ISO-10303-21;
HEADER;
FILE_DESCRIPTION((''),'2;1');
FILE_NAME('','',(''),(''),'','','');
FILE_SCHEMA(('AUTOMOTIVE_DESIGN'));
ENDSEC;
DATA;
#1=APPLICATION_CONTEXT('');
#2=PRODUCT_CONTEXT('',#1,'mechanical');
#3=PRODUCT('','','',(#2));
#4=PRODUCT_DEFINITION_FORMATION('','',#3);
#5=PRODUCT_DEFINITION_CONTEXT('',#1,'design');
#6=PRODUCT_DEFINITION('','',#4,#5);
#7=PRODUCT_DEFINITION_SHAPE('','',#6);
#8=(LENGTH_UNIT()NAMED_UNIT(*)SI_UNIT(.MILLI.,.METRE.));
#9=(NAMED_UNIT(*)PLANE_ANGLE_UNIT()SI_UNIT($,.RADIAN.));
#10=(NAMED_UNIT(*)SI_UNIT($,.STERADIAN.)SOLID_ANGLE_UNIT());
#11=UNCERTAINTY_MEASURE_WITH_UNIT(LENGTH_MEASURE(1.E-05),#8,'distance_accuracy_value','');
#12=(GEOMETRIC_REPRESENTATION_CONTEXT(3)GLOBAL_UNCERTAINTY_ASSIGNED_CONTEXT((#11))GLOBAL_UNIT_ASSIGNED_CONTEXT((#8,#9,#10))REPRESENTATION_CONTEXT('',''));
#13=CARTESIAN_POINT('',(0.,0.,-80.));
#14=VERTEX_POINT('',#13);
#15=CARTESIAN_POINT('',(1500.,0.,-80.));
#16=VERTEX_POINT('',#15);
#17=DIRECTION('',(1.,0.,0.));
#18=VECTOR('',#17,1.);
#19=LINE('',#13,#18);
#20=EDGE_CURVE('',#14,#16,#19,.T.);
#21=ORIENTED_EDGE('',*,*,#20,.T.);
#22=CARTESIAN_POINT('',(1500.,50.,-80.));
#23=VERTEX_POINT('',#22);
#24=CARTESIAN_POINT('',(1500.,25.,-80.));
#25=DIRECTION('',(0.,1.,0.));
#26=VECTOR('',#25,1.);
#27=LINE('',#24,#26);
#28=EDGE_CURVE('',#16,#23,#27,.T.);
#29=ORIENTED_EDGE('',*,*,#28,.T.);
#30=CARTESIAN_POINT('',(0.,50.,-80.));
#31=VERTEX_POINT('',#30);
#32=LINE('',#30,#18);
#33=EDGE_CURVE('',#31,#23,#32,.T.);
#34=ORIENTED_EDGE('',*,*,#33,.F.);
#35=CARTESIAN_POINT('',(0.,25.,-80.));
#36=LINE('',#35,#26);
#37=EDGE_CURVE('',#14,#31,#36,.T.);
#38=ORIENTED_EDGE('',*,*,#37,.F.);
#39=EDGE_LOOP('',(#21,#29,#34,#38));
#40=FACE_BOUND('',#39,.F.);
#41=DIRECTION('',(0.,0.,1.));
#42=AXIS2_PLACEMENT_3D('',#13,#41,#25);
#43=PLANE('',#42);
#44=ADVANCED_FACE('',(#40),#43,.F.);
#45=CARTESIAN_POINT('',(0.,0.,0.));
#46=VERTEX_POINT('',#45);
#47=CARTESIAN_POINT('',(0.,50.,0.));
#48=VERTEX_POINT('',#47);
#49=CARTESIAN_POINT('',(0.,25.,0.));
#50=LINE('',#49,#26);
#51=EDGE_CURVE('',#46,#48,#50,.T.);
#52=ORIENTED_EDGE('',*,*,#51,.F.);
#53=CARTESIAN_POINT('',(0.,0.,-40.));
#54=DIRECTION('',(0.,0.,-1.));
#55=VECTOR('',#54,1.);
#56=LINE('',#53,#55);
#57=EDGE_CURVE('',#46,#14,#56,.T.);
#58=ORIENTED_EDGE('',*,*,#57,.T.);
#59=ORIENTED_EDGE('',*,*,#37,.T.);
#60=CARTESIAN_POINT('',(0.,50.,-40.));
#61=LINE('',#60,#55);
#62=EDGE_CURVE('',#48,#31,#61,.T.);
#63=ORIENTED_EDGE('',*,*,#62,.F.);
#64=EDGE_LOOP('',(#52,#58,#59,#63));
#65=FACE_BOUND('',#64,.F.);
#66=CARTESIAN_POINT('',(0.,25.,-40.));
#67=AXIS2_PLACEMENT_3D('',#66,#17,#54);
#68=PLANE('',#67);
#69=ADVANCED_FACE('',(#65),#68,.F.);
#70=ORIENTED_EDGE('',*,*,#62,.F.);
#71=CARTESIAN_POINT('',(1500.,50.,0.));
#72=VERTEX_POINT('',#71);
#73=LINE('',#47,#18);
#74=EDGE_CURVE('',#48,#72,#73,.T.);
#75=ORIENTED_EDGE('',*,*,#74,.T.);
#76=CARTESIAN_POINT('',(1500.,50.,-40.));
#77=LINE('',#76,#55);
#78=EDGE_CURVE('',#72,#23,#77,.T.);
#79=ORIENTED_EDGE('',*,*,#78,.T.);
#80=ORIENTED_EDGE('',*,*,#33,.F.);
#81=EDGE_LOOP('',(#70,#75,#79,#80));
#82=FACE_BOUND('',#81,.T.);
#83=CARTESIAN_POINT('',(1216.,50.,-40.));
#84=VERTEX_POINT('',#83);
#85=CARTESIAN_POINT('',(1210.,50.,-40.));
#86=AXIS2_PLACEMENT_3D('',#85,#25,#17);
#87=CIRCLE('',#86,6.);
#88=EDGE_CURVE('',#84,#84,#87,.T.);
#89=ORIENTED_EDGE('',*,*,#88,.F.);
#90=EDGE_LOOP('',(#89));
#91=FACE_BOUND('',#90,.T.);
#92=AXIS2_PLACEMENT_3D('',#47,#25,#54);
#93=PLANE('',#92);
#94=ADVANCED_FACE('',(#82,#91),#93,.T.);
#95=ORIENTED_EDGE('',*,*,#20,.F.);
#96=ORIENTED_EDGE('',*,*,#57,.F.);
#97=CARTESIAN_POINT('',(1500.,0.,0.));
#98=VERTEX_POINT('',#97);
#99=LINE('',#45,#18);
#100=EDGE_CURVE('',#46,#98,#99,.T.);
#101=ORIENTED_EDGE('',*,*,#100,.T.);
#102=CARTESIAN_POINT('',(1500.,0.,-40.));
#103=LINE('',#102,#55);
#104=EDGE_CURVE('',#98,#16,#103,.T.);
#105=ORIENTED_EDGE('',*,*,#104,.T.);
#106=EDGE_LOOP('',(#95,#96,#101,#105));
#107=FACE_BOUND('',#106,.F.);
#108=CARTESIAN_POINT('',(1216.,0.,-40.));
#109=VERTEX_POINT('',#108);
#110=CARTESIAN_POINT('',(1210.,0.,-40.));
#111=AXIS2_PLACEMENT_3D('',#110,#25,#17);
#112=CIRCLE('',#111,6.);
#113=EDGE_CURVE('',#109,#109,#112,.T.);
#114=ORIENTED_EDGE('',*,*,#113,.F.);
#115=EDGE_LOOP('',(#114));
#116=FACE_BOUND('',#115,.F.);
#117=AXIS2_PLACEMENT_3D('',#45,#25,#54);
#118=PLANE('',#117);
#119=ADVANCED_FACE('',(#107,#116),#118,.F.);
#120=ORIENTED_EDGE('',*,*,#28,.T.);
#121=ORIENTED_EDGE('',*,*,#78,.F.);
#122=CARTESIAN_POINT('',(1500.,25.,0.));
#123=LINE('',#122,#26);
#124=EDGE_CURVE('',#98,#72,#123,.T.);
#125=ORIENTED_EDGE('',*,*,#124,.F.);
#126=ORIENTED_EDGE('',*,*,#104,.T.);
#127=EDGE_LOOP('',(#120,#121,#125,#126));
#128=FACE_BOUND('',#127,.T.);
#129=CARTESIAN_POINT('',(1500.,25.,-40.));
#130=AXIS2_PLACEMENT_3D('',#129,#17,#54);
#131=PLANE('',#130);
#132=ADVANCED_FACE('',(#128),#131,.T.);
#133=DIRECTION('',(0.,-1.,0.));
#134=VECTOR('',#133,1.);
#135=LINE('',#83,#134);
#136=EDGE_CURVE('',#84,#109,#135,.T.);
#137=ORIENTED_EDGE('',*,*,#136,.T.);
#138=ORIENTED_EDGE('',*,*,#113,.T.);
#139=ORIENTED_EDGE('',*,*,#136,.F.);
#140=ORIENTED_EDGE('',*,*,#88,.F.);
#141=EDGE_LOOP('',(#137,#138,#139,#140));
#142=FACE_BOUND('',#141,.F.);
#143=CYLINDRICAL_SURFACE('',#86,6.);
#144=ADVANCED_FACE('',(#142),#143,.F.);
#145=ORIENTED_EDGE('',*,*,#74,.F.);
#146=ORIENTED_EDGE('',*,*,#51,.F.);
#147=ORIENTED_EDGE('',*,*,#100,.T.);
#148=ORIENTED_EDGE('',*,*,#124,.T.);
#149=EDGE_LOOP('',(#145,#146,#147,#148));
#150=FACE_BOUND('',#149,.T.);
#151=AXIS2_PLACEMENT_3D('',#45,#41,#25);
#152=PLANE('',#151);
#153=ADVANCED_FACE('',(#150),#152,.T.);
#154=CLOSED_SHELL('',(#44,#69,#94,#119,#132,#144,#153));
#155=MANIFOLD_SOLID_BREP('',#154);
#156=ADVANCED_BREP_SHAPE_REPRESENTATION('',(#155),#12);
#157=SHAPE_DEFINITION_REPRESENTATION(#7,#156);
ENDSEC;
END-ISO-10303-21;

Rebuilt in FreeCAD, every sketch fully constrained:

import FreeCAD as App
import Part
import Sketcher

doc = App.newDocument("Part")
body = doc.addObject("PartDesign::Body", "Body")

sketch1 = body.newObject("Sketcher::SketchObject", "Sketch")
sketch1.AttachmentSupport = (doc.getObject("YZ_Plane"), [""])
sketch1.MapMode = "FlatFace"
sketch1.addGeometry([
    Part.LineSegment(App.Vector(50, 0, 0), App.Vector(0, 0, 0)),
    Part.LineSegment(App.Vector(0, 0, 0), App.Vector(0, -80, 0)),
    Part.LineSegment(App.Vector(0, -80, 0), App.Vector(50, -80, 0)),
    Part.LineSegment(App.Vector(50, -80, 0), App.Vector(50, 0, 0)),
], False)
sketch1.addConstraint([
    Sketcher.Constraint("Coincident", 0, 2, 1, 1),
    Sketcher.Constraint("Coincident", 1, 2, 2, 1),
    Sketcher.Constraint("Coincident", 2, 2, 3, 1),
    Sketcher.Constraint("Coincident", 3, 2, 0, 1),
    Sketcher.Constraint("Horizontal", 0),
    Sketcher.Constraint("Vertical", 1),
    Sketcher.Constraint("Horizontal", 2),
    Sketcher.Constraint("Vertical", 3),
    Sketcher.Constraint("Coincident", 0, 2, -1, 1),
    Sketcher.Constraint("DistanceX", 0, 2, 0, 1, 50.0),
    Sketcher.Constraint("DistanceY", 1, 2, 1, 1, 80.0),
])
pad1 = body.newObject("PartDesign::Pad", "Pad")
pad1.Profile = sketch1
pad1.Length = 1500

sketch2 = body.newObject("Sketcher::SketchObject", "Sketch001")
sketch2.AttachmentSupport = (doc.getObject("XZ_Plane"), [""])
sketch2.MapMode = "FlatFace"
sketch2.AttachmentOffset = App.Placement(App.Vector(0, 0, -50), App.Rotation())
sketch2.addGeometry(Part.Circle(App.Vector(1210, -40, 0), App.Vector(0, 0, 1), 6), False)
sketch2.addConstraint([
    Sketcher.Constraint("Diameter", 0, 12.0),
    Sketcher.Constraint("DistanceX", -1, 1, 0, 3, 1210.0),
    Sketcher.Constraint("DistanceY", 0, 3, -1, 1, 40.0),
])
pocket1 = body.newObject("PartDesign::Pocket", "Pocket")
pocket1.Profile = sketch2
pocket1.Type = "ThroughAll"
pocket1.Reversed = True

doc.recompute()
